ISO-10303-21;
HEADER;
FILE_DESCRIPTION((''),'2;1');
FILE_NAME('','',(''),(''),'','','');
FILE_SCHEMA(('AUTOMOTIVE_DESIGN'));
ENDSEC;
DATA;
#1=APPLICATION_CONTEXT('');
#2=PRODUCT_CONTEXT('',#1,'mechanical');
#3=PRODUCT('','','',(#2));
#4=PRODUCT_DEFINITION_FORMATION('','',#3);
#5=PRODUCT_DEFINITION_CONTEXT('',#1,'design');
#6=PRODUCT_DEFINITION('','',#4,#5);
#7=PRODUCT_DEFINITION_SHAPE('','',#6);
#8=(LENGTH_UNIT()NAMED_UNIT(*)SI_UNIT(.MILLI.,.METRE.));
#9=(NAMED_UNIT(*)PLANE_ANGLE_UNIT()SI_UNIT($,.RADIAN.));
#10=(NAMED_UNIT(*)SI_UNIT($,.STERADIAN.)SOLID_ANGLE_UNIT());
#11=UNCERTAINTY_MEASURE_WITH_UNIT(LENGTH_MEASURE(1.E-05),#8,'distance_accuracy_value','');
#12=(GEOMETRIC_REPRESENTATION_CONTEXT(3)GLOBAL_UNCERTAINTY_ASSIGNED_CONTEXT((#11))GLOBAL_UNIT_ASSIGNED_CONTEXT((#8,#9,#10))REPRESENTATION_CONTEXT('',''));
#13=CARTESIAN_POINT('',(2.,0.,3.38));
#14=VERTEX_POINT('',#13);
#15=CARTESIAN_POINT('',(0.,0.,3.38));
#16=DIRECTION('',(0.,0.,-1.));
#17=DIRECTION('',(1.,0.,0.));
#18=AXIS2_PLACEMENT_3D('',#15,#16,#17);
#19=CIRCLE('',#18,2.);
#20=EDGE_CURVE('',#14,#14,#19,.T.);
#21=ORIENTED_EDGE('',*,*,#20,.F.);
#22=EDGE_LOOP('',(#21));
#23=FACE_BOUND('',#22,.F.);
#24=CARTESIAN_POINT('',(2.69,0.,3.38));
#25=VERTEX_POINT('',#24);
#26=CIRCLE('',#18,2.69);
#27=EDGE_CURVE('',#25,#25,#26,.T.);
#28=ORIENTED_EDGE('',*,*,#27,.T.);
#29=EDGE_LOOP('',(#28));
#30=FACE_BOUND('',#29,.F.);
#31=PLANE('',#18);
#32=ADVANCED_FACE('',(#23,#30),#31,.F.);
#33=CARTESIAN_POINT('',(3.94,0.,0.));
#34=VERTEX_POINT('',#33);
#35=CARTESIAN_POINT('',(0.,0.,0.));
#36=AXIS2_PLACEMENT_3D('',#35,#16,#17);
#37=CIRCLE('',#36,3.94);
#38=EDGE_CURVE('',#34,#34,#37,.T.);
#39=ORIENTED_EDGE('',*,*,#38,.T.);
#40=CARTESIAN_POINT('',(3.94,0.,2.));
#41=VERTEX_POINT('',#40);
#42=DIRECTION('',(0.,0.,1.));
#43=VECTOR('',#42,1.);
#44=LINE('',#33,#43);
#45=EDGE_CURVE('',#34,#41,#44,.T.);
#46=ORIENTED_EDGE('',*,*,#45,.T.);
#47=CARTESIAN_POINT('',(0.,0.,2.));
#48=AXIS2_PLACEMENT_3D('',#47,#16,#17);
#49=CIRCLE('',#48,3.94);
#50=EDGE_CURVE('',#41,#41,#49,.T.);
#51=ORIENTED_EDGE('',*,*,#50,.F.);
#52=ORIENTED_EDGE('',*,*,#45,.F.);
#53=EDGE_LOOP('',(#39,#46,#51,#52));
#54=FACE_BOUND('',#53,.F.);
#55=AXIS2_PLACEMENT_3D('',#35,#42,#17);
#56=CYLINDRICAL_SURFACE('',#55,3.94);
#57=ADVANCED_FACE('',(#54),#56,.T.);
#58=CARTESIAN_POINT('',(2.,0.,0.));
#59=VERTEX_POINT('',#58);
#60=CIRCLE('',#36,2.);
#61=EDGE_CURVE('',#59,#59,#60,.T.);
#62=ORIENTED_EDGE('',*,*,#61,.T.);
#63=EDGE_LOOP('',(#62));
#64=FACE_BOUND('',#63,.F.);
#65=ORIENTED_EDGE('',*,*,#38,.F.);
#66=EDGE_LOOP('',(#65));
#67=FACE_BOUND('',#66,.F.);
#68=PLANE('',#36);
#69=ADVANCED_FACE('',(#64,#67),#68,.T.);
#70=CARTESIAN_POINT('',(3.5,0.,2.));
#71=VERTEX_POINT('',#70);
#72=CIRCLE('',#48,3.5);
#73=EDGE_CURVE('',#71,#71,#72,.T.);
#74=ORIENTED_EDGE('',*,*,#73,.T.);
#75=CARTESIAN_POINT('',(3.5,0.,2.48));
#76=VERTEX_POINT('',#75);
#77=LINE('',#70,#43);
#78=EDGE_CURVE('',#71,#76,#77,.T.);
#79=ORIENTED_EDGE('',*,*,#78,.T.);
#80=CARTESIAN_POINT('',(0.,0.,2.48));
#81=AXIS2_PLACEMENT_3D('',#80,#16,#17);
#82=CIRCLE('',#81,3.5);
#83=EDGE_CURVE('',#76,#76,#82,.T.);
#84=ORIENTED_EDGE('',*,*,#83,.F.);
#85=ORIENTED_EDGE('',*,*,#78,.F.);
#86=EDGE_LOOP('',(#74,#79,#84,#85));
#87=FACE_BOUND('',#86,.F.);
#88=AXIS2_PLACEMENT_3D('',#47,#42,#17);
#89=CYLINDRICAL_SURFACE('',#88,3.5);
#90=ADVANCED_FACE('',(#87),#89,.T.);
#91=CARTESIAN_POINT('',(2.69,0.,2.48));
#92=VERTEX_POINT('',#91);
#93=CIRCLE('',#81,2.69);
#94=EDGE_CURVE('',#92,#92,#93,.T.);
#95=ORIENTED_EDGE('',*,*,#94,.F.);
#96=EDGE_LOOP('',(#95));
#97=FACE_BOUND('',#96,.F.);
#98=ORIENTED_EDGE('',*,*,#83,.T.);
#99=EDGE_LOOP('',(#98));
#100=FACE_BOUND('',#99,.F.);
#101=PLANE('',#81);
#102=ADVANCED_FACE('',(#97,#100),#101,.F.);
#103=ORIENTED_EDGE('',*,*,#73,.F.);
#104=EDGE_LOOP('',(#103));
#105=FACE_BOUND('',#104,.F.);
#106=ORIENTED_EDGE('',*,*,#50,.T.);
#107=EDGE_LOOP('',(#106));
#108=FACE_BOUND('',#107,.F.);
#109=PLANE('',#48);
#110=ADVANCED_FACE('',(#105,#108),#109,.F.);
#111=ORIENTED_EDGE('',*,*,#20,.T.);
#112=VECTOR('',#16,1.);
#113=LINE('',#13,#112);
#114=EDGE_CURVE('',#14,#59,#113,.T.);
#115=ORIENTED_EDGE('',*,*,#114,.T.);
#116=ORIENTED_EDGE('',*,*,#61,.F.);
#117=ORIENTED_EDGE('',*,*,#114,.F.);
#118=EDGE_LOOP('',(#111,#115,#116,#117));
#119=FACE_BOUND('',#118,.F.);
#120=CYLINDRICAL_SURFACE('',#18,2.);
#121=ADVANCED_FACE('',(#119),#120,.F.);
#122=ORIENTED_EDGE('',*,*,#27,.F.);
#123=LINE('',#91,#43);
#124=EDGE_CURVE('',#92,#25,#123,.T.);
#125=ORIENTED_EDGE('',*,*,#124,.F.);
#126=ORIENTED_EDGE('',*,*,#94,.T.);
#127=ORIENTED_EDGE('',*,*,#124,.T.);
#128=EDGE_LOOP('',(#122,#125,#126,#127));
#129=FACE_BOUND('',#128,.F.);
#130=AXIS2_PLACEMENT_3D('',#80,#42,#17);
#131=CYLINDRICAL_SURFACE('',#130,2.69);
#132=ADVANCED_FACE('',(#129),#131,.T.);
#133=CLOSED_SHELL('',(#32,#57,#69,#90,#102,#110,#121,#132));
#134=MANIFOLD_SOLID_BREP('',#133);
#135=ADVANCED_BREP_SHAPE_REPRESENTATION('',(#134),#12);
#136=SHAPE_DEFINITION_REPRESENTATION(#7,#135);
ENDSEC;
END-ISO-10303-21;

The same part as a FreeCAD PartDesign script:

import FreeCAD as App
import Part
import Sketcher

V = App.Vector
Q = App.Units.Quantity


def add_polygon(sketch, points):
    """Adds a closed chain of lines whose ends are joined by coincident constraints."""
    first, n = sketch.GeometryCount, len(points)
    for a, b in zip(points, points[1:] + points[:1]):
        sketch.addGeometry(Part.LineSegment(App.Vector(*a, 0), App.Vector(*b, 0)), False)
    for i in range(n):
        sketch.addConstraint(Sketcher.Constraint("Coincident", first + i, 2, first + (i + 1) % n, 1))

doc = App.newDocument("Part")
body = doc.addObject("PartDesign::Body", "Body")

# Sketch on XZ plane
sketch1 = body.newObject("Sketcher::SketchObject", "Sketch")
sketch1.AttachmentSupport = (doc.getObject("XZ_Plane"), [""])
sketch1.MapMode = "FlatFace"
add_polygon(sketch1, [(2, 3.38), (2, 0), (3.94, 0), (3.94, 2), (3.5, 2), (3.5, 2.48), (2.69, 2.48), (2.69, 3.38)])  # lines 0-7
sketch1.addConstraint([
    Sketcher.Constraint("Vertical", 0),
    Sketcher.Constraint("Horizontal", 1),
    Sketcher.Constraint("Vertical", 2),
    Sketcher.Constraint("Horizontal", 3),
    Sketcher.Constraint("Vertical", 4),
    Sketcher.Constraint("Horizontal", 5),
    Sketcher.Constraint("Vertical", 6),
    Sketcher.Constraint("Horizontal", 7),
    Sketcher.Constraint("PointOnObject", 0, 2, -1),
    Sketcher.Constraint("DistanceY", 2, 1, 2, 2, Q("2 mm")),
    Sketcher.Constraint("DistanceX", -1, 1, 1, 2, Q("3.94 mm")),
    Sketcher.Constraint("DistanceX", -1, 1, 5, 2, Q("2.69 mm")),
    Sketcher.Constraint("DistanceY", 6, 1, 6, 2, Q("0.9 mm")),
    Sketcher.Constraint("DistanceX", -1, 1, 0, 2, Q("2 mm")),
    Sketcher.Constraint("DistanceX", 3, 2, 3, 1, Q("0.44 mm")),
    Sketcher.Constraint("DistanceY", 0, 2, 0, 1, Q("3.38 mm")),
])
revolution = body.newObject("PartDesign::Revolution", "Revolution")
revolution.Profile = sketch1
revolution.ReferenceAxis = (sketch1, ["V_Axis"])
revolution.Angle = 360

doc.recompute()
